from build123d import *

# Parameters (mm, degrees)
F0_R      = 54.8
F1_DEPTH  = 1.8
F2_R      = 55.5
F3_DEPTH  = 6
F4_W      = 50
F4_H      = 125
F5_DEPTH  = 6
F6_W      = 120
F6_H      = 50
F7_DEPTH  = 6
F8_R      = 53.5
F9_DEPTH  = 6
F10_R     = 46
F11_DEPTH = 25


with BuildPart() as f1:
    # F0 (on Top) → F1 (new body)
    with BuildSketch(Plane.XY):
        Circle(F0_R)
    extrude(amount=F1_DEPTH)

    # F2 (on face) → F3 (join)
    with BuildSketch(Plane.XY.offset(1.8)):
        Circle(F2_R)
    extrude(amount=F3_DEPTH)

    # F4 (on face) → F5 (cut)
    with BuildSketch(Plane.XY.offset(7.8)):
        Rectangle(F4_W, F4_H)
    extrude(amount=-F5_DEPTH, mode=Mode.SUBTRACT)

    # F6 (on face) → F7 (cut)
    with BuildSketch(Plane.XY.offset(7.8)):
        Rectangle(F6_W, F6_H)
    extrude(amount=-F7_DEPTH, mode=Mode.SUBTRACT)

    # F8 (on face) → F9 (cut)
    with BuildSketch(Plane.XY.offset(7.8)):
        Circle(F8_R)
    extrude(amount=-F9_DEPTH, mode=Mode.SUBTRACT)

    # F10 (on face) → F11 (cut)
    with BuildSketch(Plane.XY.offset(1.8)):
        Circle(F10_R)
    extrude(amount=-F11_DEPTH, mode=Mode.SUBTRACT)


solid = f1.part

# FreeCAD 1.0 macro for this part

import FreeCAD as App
import Part
import Sketcher
from FreeCAD import Vector


def add_polygon(sketch, points):
    """Adds a closed chain of lines whose ends are joined by coincident constraints."""
    first, n = sketch.GeometryCount, len(points)
    for a, b in zip(points, points[1:] + points[:1]):
        sketch.addGeometry(Part.LineSegment(App.Vector(*a, 0), App.Vector(*b, 0)), False)
    for i in range(n):
        sketch.addConstraint(Sketcher.Constraint("Coincident", first + i, 2, first + (i + 1) % n, 1))

doc = App.newDocument("Part")
params = doc.addObject("Spreadsheet::Sheet", "Params")
for row, (alias, value) in enumerate([
    ("sketch1_diameter", "109.6 mm"),
    ("pad1_length", "1.8 mm"),
    ("sketch2_diameter", "111 mm"),
    ("pad2_length", "6 mm"),
    ("sketch3_width", "50 mm"),
    ("sketch3_height", "125 mm"),
    ("pocket1_length", "6 mm"),
    ("sketch4_width", "120 mm"),
    ("sketch4_height", "50 mm"),
    ("pocket2_length", "6 mm"),
    ("sketch5_diameter", "107 mm"),
    ("pocket3_length", "6 mm"),
    ("sketch6_diameter", "92 mm"),
    ("pocket4_length", "25 mm"),
], start=1):
    params.set(f"A{row}", alias)
    params.set(f"B{row}", "=" + value)
    params.setAlias(f"B{row}", alias)

body = doc.addObject("PartDesign::Body", "Body")

sketch1 = body.newObject("Sketcher::SketchObject", "Sketch")
sketch1.AttachmentSupport = (doc.getObject("XY_Plane"), [""])
sketch1.MapMode = "FlatFace"
sketch1.addGeometry(Part.Circle(Vector(0, 0, 0), Vector(0, 0, 1), 55), False)
sketch1.addConstraint(Sketcher.Constraint("Coincident", 0, 3, -1, 1))
sketch1.addConstraint(Sketcher.Constraint("Diameter", 0, 109.6))
sketch1.setExpression("Constraints[1]", "Params.sketch1_diameter")
pad1 = body.newObject("PartDesign::Pad", "Pad")
pad1.Profile = sketch1
pad1.setExpression("Length", "Params.pad1_length")

sketch2 = body.newObject("Sketcher::SketchObject", "Sketch001")
sketch2.AttachmentSupport = (doc.getObject("XY_Plane"), [""])
sketch2.MapMode = "FlatFace"
sketch2.AttachmentOffset = App.Placement(Vector(0, 0, 1.8), App.Rotation())
sketch2.addGeometry(Part.Circle(Vector(0, 0, 0), Vector(0, 0, 1), 56), False)
sketch2.addConstraint(Sketcher.Constraint("Coincident", 0, 3, -1, 1))
sketch2.addConstraint(Sketcher.Constraint("Diameter", 0, 111.0))
sketch2.setExpression("Constraints[1]", "Params.sketch2_diameter")
pad2 = body.newObject("PartDesign::Pad", "Pad001")
pad2.Profile = sketch2
pad2.setExpression("Length", "Params.pad2_length")

sketch3 = body.newObject("Sketcher::SketchObject", "Sketch002")
sketch3.AttachmentSupport = (doc.getObject("XY_Plane"), [""])
sketch3.MapMode = "FlatFace"
sketch3.AttachmentOffset = App.Placement(Vector(0, 0, 7.8), App.Rotation())
add_polygon(sketch3, [(-25, 62), (-25, -62), (25, -62), (25, 62)])
sketch3.addConstraint(Sketcher.Constraint("Vertical", 0))
sketch3.addConstraint(Sketcher.Constraint("Horizontal", 1))
sketch3.addConstraint(Sketcher.Constraint("Vertical", 2))
sketch3.addConstraint(Sketcher.Constraint("Horizontal", 3))
sketch3.addConstraint(Sketcher.Constraint("Symmetric", 0, 2, 2, 2, -1, 1))
sketch3.addConstraint(Sketcher.Constraint("DistanceX", 1, 1, 1, 2, 50.0))
sketch3.addConstraint(Sketcher.Constraint("DistanceY", 0, 2, 0, 1, 125.0))
sketch3.setExpression("Constraints[9]", "Params.sketch3_width")
sketch3.setExpression("Constraints[10]", "Params.sketch3_height")
pocket1 = body.newObject("PartDesign::Pocket", "Pocket")
pocket1.Profile = sketch3
pocket1.setExpression("Length", "Params.pocket1_length")

sketch4 = body.newObject("Sketcher::SketchObject", "Sketch003")
sketch4.AttachmentSupport = (doc.getObject("XY_Plane"), [""])
sketch4.MapMode = "FlatFace"
sketch4.AttachmentOffset = App.Placement(Vector(0, 0, 7.8), App.Rotation())
add_polygon(sketch4, [(-60, 25), (-60, -25), (60, -25), (60, 25)])
sketch4.addConstraint(Sketcher.Constraint("Vertical", 0))
sketch4.addConstraint(Sketcher.Constraint("Horizontal", 1))
sketch4.addConstraint(Sketcher.Constraint("Vertical", 2))
sketch4.addConstraint(Sketcher.Constraint("Horizontal", 3))
sketch4.addConstraint(Sketcher.Constraint("Symmetric", 0, 2, 2, 2, -1, 1))
sketch4.addConstraint(Sketcher.Constraint("DistanceX", 1, 1, 1, 2, 120.0))
sketch4.addConstraint(Sketcher.Constraint("DistanceY", 0, 2, 0, 1, 50.0))
sketch4.setExpression("Constraints[9]", "Params.sketch4_width")
sketch4.setExpression("Constraints[10]", "Params.sketch4_height")
pocket2 = body.newObject("PartDesign::Pocket", "Pocket001")
pocket2.Profile = sketch4
pocket2.setExpression("Length", "Params.pocket2_length")

sketch5 = body.newObject("Sketcher::SketchObject", "Sketch004")
sketch5.AttachmentSupport = (doc.getObject("XY_Plane"), [""])
sketch5.MapMode = "FlatFace"
sketch5.AttachmentOffset = App.Placement(Vector(0, 0, 7.8), App.Rotation())
sketch5.addGeometry(Part.Circle(Vector(0, 0, 0), Vector(0, 0, 1), 54), False)
sketch5.addConstraint(Sketcher.Constraint("Coincident", 0, 3, -1, 1))
sketch5.addConstraint(Sketcher.Constraint("Diameter", 0, 107.0))
sketch5.setExpression("Constraints[1]", "Params.sketch5_diameter")
pocket3 = body.newObject("PartDesign::Pocket", "Pocket002")
pocket3.Profile = sketch5
pocket3.setExpression("Length", "Params.pocket3_length")

sketch6 = body.newObject("Sketcher::SketchObject", "Sketch005")
sketch6.AttachmentSupport = (doc.getObject("XY_Plane"), [""])
sketch6.MapMode = "FlatFace"
sketch6.AttachmentOffset = App.Placement(Vector(0, 0, 1.8), App.Rotation())
sketch6.addGeometry(Part.Circle(Vector(0, 0, 0), Vector(0, 0, 1), 46), False)
sketch6.addConstraint(Sketcher.Constraint("Coincident", 0, 3, -1, 1))
sketch6.addConstraint(Sketcher.Constraint("Diameter", 0, 92.0))
sketch6.setExpression("Constraints[1]", "Params.sketch6_diameter")
pocket4 = body.newObject("PartDesign::Pocket", "Pocket003")
pocket4.Profile = sketch6
pocket4.setExpression("Length", "Params.pocket4_length")

doc.recompute()
